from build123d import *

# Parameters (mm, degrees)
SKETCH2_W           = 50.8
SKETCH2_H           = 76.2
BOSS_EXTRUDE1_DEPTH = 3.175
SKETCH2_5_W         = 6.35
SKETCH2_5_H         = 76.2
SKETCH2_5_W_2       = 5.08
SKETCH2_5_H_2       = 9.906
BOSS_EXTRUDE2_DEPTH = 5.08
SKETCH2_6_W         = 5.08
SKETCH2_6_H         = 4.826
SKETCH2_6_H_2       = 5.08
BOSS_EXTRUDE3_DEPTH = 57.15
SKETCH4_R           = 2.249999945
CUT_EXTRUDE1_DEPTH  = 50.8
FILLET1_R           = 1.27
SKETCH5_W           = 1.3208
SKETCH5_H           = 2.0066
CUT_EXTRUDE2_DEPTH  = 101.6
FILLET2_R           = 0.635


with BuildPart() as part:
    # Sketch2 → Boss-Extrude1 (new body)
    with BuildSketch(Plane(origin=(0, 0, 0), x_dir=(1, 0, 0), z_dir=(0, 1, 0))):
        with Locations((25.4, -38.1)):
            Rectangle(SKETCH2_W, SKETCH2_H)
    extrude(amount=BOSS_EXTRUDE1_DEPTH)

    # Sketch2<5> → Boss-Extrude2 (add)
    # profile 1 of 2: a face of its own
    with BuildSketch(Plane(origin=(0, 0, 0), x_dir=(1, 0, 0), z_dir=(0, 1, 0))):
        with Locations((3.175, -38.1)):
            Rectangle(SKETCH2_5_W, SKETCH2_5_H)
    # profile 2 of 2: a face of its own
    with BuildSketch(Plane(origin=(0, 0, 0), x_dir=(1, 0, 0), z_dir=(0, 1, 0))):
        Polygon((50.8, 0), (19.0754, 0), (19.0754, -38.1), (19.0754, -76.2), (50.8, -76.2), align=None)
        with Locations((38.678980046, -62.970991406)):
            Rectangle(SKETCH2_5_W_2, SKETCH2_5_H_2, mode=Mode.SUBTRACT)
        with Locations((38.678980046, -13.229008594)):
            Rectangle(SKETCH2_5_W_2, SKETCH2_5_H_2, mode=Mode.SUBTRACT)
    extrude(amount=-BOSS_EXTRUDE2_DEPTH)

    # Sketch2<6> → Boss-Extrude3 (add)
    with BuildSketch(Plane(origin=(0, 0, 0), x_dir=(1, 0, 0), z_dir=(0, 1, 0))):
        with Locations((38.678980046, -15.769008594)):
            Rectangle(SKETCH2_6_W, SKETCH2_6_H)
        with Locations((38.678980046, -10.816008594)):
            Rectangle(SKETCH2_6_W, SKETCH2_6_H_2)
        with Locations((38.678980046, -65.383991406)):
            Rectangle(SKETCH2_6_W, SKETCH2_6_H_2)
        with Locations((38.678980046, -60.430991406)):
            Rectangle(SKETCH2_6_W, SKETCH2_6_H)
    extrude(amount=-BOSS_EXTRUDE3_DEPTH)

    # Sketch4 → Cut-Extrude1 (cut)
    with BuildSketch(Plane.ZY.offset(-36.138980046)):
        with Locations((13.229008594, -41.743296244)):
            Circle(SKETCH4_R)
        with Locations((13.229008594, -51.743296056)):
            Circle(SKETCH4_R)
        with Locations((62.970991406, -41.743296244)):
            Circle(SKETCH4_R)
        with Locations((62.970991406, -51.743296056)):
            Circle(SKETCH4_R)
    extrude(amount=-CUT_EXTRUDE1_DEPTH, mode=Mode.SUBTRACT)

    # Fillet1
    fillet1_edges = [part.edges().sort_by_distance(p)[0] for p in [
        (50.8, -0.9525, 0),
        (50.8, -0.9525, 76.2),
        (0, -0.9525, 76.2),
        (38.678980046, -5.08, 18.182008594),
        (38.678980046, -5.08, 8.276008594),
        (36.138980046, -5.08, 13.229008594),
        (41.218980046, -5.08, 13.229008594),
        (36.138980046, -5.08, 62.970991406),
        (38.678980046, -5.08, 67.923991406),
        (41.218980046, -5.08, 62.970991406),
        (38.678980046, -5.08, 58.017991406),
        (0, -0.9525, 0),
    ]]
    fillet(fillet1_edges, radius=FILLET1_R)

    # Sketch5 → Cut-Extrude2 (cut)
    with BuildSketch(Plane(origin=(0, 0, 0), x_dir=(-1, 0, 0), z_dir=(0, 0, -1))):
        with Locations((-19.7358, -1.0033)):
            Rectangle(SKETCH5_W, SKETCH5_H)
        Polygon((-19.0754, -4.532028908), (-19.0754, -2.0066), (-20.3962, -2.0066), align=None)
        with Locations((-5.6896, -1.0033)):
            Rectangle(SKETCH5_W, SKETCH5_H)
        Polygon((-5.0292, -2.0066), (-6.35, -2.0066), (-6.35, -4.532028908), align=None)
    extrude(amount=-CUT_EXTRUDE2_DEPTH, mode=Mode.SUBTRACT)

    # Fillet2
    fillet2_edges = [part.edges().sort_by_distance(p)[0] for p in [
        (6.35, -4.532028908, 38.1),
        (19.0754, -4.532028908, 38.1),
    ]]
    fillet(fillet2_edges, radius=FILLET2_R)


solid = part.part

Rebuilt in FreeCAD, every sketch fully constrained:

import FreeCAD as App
import Part
import Sketcher
Q = App.Units.Quantity


def edges_at(feature, points):
    """Names of the edges that pass closest to the given points."""
    edges = feature.Shape.Edges
    near = lambda p: min(range(len(edges)), key=lambda i: edges[i].distToShape(Part.Vertex(*p))[0])
    return sorted({f"Edge{near(p) + 1}" for p in points})


def add_polygon(sketch, points):
    """Adds a closed chain of lines whose ends are joined by coincident constraints."""
    first, n = sketch.GeometryCount, len(points)
    for a, b in zip(points, points[1:] + points[:1]):
        sketch.addGeometry(Part.LineSegment(App.Vector(*a, 0), App.Vector(*b, 0)), False)
    for i in range(n):
        sketch.addConstraint(Sketcher.Constraint("Coincident", first + i, 2, first + (i + 1) % n, 1))

doc = App.newDocument("Part")
body = doc.addObject("PartDesign::Body", "Body")

# Sketch on XZ plane
sketch1 = body.newObject("Sketcher::SketchObject", "Sketch")
sketch1.AttachmentSupport = (doc.getObject("XZ_Plane"), [""])
sketch1.MapMode = "FlatFace"
add_polygon(sketch1, [(0, 0), (0, 76), (51, 76), (51, 0)])  # lines 0-3
sketch1.addConstraint([
    Sketcher.Constraint("Vertical", 0),
    Sketcher.Constraint("Horizontal", 1),
    Sketcher.Constraint("Vertical", 2),
    Sketcher.Constraint("Horizontal", 3),
    Sketcher.Constraint("Coincident", 3, 2, -1, 1),
    Sketcher.Constraint("DistanceX", 1, 1, 1, 2, Q("2 in")),
    Sketcher.Constraint("DistanceY", 0, 1, 0, 2, Q("3 in")),
])
pad1 = body.newObject("PartDesign::Pad", "Pad")
pad1.Profile = sketch1
pad1.Length = Q("0.125 in")
pad1.Reversed = True

# Sketch on XZ plane
sketch2 = body.newObject("Sketcher::SketchObject", "Sketch001")
sketch2.AttachmentSupport = (doc.getObject("XZ_Plane"), [""])
sketch2.MapMode = "FlatFace"
add_polygon(sketch2, [(0, 0), (0, 76), (6, 76), (6, 0)])  # lines 0-3
add_polygon(sketch2, [(51, 0), (19, 0), (19, 76), (51, 76)])  # lines 4-7
add_polygon(sketch2, [(41, 68), (36, 68), (36, 58), (41, 58)])  # lines 8-11
add_polygon(sketch2, [(41, 18), (36, 18), (36, 8), (41, 8)])  # lines 12-15
sketch2.addConstraint([
    Sketcher.Constraint("Vertical", 0),
    Sketcher.Constraint("Horizontal", 1),
    Sketcher.Constraint("Vertical", 2),
    Sketcher.Constraint("Horizontal", 3),
    Sketcher.Constraint("Horizontal", 4),
    Sketcher.Constraint("Vertical", 5),
    Sketcher.Constraint("Horizontal", 6),
    Sketcher.Constraint("Vertical", 7),
    Sketcher.Constraint("Horizontal", 8),
    Sketcher.Constraint("Vertical", 9),
    Sketcher.Constraint("Horizontal", 10),
    Sketcher.Constraint("Vertical", 11),
    Sketcher.Constraint("Horizontal", 12),
    Sketcher.Constraint("Vertical", 13),
    Sketcher.Constraint("Horizontal", 14),
    Sketcher.Constraint("Vertical", 15),
    Sketcher.Constraint("Coincident", 3, 2, -1, 1),
    Sketcher.Constraint("PointOnObject", 4, 2, -1),
    Sketcher.Constraint("Horizontal", 1, 2, 5, 2),
    Sketcher.Constraint("Vertical", 9, 2, 12, 2),
    Sketcher.Constraint("Vertical", 11, 2, 14, 2),
    Sketcher.Constraint("Equal", 11, 13),
    Sketcher.Constraint("DistanceY", 0, 1, 0, 2, Q("3 in")),
    Sketcher.Constraint("DistanceX", 8, 2, 8, 1, Q("0.2 in")),
    Sketcher.Constraint("DistanceX", -1, 1, 6, 2, Q("2 in")),
    Sketcher.Constraint("DistanceX", 1, 1, 1, 2, Q("0.25 in")),
    Sketcher.Constraint("DistanceY", 9, 2, 9, 1, Q("0.39 in")),
    Sketcher.Constraint("DistanceX", 4, 2, 4, 1, Q("1.249 in")),
    Sketcher.Constraint("DistanceX", -1, 1, 8, 2, 36.13898),
    Sketcher.Constraint("DistanceY", -1, 1, 8, 2, 67.923991),
    Sketcher.Constraint("DistanceY", -1, 1, 12, 2, 18.182009),
])
pad2 = body.newObject("PartDesign::Pad", "Pad001")
pad2.Profile = sketch2
pad2.Length = Q("0.2 in")

# Sketch on XZ plane
sketch3 = body.newObject("Sketcher::SketchObject", "Sketch002")
sketch3.AttachmentSupport = (doc.getObject("XZ_Plane"), [""])
sketch3.MapMode = "FlatFace"
add_polygon(sketch3, [(36, 18), (41, 18), (41, 8), (36, 8)])  # lines 0-3
add_polygon(sketch3, [(36, 68), (41, 68), (41, 58), (36, 58)])  # lines 4-7
sketch3.addConstraint([
    Sketcher.Constraint("Horizontal", 0),
    Sketcher.Constraint("Vertical", 1),
    Sketcher.Constraint("Horizontal", 2),
    Sketcher.Constraint("Vertical", 3),
    Sketcher.Constraint("Horizontal", 4),
    Sketcher.Constraint("Vertical", 5),
    Sketcher.Constraint("Horizontal", 6),
    Sketcher.Constraint("Vertical", 7),
    Sketcher.Constraint("Vertical", 1, 2, 4, 2),
    Sketcher.Constraint("Vertical", 3, 2, 6, 2),
    Sketcher.Constraint("Equal", 3, 5),
    Sketcher.Constraint("DistanceX", 0, 1, 0, 2, Q("0.2 in")),
    Sketcher.Constraint("DistanceY", 1, 2, 1, 1, Q("0.39 in")),
    Sketcher.Constraint("DistanceX", -1, 1, 0, 2, 41.21898),
    Sketcher.Constraint("DistanceY", -1, 1, 0, 2, 18.182009),
    Sketcher.Constraint("DistanceY", -1, 1, 4, 2, 67.923991),
])
pad3 = body.newObject("PartDesign::Pad", "Pad002")
pad3.Profile = sketch3
pad3.Length = Q("2.25 in")

# Sketch on YZ plane
sketch4 = body.newObject("Sketcher::SketchObject", "Sketch003")
sketch4.AttachmentSupport = (doc.getObject("YZ_Plane"), [""])
sketch4.MapMode = "FlatFace"
sketch4.AttachmentOffset = App.Placement(App.Vector(0, 0, 36.13898), App.Rotation())
sketch4.addGeometry([
    Part.Circle(App.Vector(-41.7, 13.2, 0), App.Vector(0, 0, 1), 2.2),
    Part.Circle(App.Vector(-51.7, 13.2, 0), App.Vector(0, 0, 1), 2.2),
    Part.Circle(App.Vector(-41.7, 63, 0), App.Vector(0, 0, 1), 2.2),
    Part.Circle(App.Vector(-51.7, 63, 0), App.Vector(0, 0, 1), 2.2),
], False)
sketch4.addConstraint([
    Sketcher.Constraint("Equal", 0, 1),
    Sketcher.Constraint("Equal", 1, 2),
    Sketcher.Constraint("Equal", 2, 3),
    Sketcher.Constraint("Horizontal", 0, 3, 1, 3),
    Sketcher.Constraint("Horizontal", 2, 3, 3, 3),
    Sketcher.Constraint("Vertical", 0, 3, 2, 3),
    Sketcher.Constraint("Vertical", 1, 3, 3, 3),
    Sketcher.Constraint("Diameter", 0, 4.5),
    Sketcher.Constraint("DistanceX", 1, 3, 0, 3, 10.0),
    Sketcher.Constraint("DistanceY", -1, 1, 0, 3, 13.229009),
    Sketcher.Constraint("DistanceY", -1, 1, 2, 3, 62.970991),
    Sketcher.Constraint("DistanceX", 0, 3, -1, 1, 41.743296),
])
pocket1 = body.newObject("PartDesign::Pocket", "Pocket")
pocket1.Profile = sketch4
pocket1.Length = Q("2 in")
pocket1.Reversed = True
doc.recompute()

fillet = body.newObject("PartDesign::Fillet", "Fillet")
fillet.Base = (pocket1, edges_at(pocket1, [
    (50.8, -0.953, 0),
    (50.8, -0.953, 76.2),
    (0, -0.953, 76.2),
    (38.679, -5.08, 18.182),
    (38.679, -5.08, 8.276),
    (36.139, -5.08, 13.229),
    (41.219, -5.08, 13.229),
    (36.139, -5.08, 62.971),
    (38.679, -5.08, 67.924),
    (41.219, -5.08, 62.971),
    (38.679, -5.08, 58.018),
    (0, -0.953, 0),
]))
fillet.Radius = Q("0.05 in")

# Sketch on XY plane
sketch5 = body.newObject("Sketcher::SketchObject", "Sketch004")
sketch5.AttachmentSupport = (doc.getObject("XY_Plane"), [""])
sketch5.MapMode = "FlatFace"
add_polygon(sketch5, [(20.4, 0), (20.4, -2), (19.1, -4.5), (19.1, 0)])  # lines 0-3
add_polygon(sketch5, [(6.3, 0), (6.3, -4.5), (5, -2), (5, 0)])  # lines 4-7
sketch5.addConstraint([
    Sketcher.Constraint("Vertical", 0),
    Sketcher.Constraint("Vertical", 2),
    Sketcher.Constraint("Horizontal", 3),
    Sketcher.Constraint("Vertical", 4),
    Sketcher.Constraint("Vertical", 6),
    Sketcher.Constraint("Horizontal", 7),
    Sketcher.Constraint("PointOnObject", 2, 2, -1),
    Sketcher.Constraint("PointOnObject", 6, 2, -1),
    Sketcher.Constraint("Horizontal", 1, 2, 4, 2),
    Sketcher.Constraint("Horizontal", 0, 2, 5, 2),
    Sketcher.Constraint("Equal", 3, 7),
    Sketcher.Constraint("DistanceX", 3, 1, 3, 2, Q("0.052 in")),
    Sketcher.Constraint("DistanceY", 0, 2, 0, 1, Q("0.079 in")),
    Sketcher.Constraint("DistanceX", -1, 1, 4, 2, Q("0.25 in")),
    Sketcher.Constraint("DistanceX", -1, 1, 0, 2, Q("0.803 in")),
    Sketcher.Constraint("DistanceY", 2, 1, 2, 2, 4.532029),
])
pocket2 = body.newObject("PartDesign::Pocket", "Pocket001")
pocket2.Profile = sketch5
pocket2.Length = Q("4 in")
pocket2.Reversed = True
doc.recompute()

fillet2 = body.newObject("PartDesign::Fillet", "Fillet001")
fillet2.Base = (pocket2, edges_at(pocket2, [(6.35, -4.532, 38.1), (19.075, -4.532, 38.1)]))
fillet2.Radius = Q("0.025 in")

doc.recompute()
